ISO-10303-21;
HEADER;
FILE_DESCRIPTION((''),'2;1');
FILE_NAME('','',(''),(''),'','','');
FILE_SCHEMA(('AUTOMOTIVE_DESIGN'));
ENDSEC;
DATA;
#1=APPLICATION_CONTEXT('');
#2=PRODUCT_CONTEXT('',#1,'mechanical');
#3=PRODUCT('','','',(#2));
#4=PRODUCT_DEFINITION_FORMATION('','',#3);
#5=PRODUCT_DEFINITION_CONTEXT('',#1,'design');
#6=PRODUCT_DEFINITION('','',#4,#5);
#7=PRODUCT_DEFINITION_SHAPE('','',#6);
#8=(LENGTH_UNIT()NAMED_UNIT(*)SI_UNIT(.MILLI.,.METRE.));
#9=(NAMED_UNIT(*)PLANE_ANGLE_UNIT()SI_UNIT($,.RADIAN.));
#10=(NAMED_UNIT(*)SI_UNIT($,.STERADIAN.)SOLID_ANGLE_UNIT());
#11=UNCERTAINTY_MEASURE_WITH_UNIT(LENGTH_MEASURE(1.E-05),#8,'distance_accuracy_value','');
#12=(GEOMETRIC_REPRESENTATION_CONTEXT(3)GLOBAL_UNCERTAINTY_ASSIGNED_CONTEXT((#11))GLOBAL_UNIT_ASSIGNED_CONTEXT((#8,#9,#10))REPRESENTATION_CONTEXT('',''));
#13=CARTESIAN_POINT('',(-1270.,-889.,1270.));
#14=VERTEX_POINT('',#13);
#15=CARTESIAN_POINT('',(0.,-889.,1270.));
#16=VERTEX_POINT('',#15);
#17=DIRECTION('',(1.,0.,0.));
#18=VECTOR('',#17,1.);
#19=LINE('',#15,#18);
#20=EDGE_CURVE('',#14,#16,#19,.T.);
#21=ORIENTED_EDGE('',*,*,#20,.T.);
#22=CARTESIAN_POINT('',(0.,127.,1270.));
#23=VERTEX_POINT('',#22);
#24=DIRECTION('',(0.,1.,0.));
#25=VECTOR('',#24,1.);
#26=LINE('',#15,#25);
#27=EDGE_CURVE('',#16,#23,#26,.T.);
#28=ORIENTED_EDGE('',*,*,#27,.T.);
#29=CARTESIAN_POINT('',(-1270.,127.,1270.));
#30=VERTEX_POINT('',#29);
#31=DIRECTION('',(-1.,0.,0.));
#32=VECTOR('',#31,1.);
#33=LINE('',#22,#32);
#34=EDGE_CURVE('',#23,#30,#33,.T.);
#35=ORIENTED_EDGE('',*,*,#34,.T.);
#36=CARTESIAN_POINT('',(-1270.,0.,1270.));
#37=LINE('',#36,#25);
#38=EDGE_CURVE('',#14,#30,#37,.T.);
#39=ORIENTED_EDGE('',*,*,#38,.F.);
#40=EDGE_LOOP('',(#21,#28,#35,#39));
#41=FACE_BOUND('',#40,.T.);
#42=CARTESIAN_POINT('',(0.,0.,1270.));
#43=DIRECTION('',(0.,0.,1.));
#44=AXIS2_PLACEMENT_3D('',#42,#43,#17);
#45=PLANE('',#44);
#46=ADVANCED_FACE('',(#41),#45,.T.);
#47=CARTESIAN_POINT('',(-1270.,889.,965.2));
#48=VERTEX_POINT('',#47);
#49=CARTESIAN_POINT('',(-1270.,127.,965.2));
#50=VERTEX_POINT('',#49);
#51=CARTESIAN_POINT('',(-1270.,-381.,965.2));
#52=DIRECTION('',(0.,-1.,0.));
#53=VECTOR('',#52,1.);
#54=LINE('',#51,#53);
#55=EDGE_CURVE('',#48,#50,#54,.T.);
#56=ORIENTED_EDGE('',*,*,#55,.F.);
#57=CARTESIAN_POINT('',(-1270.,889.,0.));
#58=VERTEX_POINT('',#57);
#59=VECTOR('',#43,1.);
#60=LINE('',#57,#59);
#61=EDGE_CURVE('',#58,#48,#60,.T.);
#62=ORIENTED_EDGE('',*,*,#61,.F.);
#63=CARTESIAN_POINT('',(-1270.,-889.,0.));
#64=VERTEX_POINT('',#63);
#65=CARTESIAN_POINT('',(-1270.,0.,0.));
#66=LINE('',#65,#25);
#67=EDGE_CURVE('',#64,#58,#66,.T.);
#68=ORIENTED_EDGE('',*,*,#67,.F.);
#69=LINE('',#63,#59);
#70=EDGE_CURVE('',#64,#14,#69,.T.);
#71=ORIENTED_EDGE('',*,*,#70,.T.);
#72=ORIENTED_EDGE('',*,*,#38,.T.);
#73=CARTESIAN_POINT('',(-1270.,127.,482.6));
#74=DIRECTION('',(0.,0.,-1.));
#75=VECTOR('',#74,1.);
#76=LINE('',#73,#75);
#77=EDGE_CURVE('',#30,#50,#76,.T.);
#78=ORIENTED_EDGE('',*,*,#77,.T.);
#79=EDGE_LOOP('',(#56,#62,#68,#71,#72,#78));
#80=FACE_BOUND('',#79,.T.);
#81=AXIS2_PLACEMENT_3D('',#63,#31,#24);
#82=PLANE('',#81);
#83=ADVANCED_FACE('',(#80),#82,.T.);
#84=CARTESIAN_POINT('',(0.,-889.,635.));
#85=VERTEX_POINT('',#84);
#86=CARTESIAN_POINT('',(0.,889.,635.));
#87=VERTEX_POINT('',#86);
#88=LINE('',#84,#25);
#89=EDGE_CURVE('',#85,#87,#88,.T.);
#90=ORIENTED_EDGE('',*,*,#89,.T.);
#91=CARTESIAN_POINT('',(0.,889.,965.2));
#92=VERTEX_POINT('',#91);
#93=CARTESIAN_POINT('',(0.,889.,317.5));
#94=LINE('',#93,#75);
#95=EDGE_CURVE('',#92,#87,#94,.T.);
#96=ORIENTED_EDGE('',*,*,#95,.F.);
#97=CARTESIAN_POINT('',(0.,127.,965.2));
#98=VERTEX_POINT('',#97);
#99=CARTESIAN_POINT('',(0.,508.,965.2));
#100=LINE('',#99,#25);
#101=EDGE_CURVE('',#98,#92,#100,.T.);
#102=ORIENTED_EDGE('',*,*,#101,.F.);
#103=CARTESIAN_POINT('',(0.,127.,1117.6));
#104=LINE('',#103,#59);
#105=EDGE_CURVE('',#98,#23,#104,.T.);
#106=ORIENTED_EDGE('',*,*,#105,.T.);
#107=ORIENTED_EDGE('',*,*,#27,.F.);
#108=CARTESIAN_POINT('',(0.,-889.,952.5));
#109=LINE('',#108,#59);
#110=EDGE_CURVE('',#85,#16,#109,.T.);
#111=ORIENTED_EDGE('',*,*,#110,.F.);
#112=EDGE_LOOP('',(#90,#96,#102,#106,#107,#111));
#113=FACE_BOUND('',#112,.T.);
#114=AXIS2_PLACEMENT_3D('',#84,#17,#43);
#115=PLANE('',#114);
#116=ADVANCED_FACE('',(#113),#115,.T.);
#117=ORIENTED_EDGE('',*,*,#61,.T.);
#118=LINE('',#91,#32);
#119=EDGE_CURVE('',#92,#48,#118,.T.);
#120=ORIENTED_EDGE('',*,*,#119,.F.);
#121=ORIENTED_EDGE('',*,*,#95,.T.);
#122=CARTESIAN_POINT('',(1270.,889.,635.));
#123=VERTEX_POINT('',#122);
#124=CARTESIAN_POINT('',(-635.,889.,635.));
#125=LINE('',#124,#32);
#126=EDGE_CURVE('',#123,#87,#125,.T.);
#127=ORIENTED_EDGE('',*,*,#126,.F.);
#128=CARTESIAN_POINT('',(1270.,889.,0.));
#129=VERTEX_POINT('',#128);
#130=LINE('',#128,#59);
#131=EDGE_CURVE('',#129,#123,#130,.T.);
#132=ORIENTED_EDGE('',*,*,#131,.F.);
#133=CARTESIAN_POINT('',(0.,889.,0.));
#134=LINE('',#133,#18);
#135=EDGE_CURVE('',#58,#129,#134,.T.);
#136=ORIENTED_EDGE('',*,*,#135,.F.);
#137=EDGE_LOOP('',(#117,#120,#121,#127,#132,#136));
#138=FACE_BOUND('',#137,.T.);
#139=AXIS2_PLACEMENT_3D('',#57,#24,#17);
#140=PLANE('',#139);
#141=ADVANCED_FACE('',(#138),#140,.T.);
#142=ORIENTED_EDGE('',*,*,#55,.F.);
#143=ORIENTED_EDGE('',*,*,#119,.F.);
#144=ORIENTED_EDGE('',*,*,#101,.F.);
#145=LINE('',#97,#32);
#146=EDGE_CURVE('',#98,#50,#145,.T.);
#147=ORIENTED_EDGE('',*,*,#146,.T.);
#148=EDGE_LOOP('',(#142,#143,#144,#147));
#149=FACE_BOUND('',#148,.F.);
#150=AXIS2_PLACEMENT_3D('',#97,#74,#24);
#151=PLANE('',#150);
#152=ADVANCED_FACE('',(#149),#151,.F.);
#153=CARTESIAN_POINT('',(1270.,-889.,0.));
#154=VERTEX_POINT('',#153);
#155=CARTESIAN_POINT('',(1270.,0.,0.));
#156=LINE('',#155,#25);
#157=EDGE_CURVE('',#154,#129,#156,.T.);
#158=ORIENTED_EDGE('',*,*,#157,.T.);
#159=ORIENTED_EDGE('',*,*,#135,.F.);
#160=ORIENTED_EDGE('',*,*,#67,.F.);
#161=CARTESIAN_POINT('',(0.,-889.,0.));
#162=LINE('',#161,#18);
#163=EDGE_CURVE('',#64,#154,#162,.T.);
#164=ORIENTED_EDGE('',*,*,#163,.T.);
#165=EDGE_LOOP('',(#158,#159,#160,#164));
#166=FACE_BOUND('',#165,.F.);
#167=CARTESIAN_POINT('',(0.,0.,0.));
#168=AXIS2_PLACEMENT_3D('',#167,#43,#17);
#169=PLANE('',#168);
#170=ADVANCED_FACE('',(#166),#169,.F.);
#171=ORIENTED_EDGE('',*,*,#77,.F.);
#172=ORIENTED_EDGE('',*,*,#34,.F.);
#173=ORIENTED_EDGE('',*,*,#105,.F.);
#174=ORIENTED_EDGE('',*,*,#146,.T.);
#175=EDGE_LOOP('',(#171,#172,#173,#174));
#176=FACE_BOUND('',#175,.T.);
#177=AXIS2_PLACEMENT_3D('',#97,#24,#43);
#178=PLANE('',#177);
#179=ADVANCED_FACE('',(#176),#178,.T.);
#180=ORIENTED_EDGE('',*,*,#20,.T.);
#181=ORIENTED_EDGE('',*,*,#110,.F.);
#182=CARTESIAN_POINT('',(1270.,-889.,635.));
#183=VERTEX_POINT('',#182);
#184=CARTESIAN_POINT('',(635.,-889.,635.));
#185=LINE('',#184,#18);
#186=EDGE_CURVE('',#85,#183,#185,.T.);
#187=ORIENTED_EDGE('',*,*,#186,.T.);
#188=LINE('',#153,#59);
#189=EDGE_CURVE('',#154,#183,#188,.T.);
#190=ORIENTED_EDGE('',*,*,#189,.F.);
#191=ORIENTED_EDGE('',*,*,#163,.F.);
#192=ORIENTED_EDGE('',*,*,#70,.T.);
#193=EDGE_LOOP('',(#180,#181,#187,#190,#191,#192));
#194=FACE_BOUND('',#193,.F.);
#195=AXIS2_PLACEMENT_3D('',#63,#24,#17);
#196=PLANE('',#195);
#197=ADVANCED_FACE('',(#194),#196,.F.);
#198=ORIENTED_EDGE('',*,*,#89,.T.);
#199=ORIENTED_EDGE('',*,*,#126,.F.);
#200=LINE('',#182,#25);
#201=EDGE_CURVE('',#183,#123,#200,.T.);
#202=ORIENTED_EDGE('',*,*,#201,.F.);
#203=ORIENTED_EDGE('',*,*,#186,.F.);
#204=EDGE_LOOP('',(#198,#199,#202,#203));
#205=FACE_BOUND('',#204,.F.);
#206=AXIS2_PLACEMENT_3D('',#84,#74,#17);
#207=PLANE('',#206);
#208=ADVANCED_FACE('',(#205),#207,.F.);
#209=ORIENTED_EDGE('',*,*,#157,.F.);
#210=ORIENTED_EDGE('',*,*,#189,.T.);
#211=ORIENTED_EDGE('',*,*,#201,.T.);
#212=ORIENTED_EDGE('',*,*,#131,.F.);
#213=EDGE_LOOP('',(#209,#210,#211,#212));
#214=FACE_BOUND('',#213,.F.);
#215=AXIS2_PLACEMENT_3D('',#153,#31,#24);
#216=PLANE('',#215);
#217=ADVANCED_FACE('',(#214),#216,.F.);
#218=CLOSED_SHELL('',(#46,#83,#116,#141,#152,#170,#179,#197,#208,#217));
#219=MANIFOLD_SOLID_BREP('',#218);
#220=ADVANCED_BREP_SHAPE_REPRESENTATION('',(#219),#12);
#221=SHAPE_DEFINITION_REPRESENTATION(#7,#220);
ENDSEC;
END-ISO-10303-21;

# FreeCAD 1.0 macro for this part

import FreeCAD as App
import Part
import Sketcher

V = App.Vector
Q = App.Units.Quantity

doc = App.newDocument("Part")
params = doc.addObject("Spreadsheet::Sheet", "Params")
for row, (alias, value) in enumerate([
    ("sketch1_width", "100 in"),
    ("sketch1_height", "70 in"),
    ("pad1_length", "50 in"),
    ("sketch2_width", "50 in"),
    ("sketch2_height", "25 in"),
    ("pocket1_length", "154.9 in"),
    ("sketch3_width", "30 in"),
    ("sketch3_height", "12 in"),
    ("pocket2_length", "63.4 in"),
], start=1):
    params.set(f"A{row}", alias)
    params.set(f"B{row}", "=" + value)
    params.setAlias(f"B{row}", alias)

body = doc.addObject("PartDesign::Body", "Body")

# Sketch on XY plane
sketch1 = body.newObject("Sketcher::SketchObject", "Sketch")
sketch1.AttachmentSupport = (doc.getObject("XY_Plane"), [""])
sketch1.MapMode = "FlatFace"
sketch1.addGeometry([
    Part.LineSegment(V(-1270, 889, 0), V(-1270, -889, 0)),
    Part.LineSegment(V(-1270, -889, 0), V(1270, -889, 0)),
    Part.LineSegment(V(1270, -889, 0), V(1270, 889, 0)),
    Part.LineSegment(V(1270, 889, 0), V(-1270, 889, 0)),
], False)
sketch1.addConstraint([
    Sketcher.Constraint("Coincident", 0, 2, 1, 1),
    Sketcher.Constraint("Coincident", 1, 2, 2, 1),
    Sketcher.Constraint("Coincident", 2, 2, 3, 1),
    Sketcher.Constraint("Coincident", 3, 2, 0, 1),
    Sketcher.Constraint("Vertical", 0),
    Sketcher.Constraint("Horizontal", 1),
    Sketcher.Constraint("Vertical", 2),
    Sketcher.Constraint("Horizontal", 3),
    Sketcher.Constraint("Symmetric", 0, 2, 2, 2, -1, 1),
    Sketcher.Constraint("DistanceX", 1, 1, 1, 2, Q("100 in")),
    Sketcher.Constraint("DistanceY", 0, 2, 0, 1, Q("70 in")),
])
sketch1.setExpression("Constraints[9]", "Params.sketch1_width")
sketch1.setExpression("Constraints[10]", "Params.sketch1_height")
pad1 = body.newObject("PartDesign::Pad", "Pad")
pad1.Profile = sketch1
pad1.setExpression("Length", "Params.pad1_length")

# Sketch on XZ plane
sketch2 = body.newObject("Sketcher::SketchObject", "Sketch001")
sketch2.AttachmentSupport = (doc.getObject("XZ_Plane"), [""])
sketch2.MapMode = "FlatFace"
sketch2.AttachmentOffset = App.Placement(V(0, 0, 35 * 25.4), App.Rotation())
sketch2.addGeometry([
    Part.LineSegment(V(0, 1270, 0), V(0, 635, 0)),
    Part.LineSegment(V(0, 635, 0), V(1270, 635, 0)),
    Part.LineSegment(V(1270, 635, 0), V(1270, 1270, 0)),
    Part.LineSegment(V(1270, 1270, 0), V(0, 1270, 0)),
], False)
sketch2.addConstraint([
    Sketcher.Constraint("Coincident", 0, 2, 1, 1),
    Sketcher.Constraint("Coincident", 1, 2, 2, 1),
    Sketcher.Constraint("Coincident", 2, 2, 3, 1),
    Sketcher.Constraint("Coincident", 3, 2, 0, 1),
    Sketcher.Constraint("Vertical", 0),
    Sketcher.Constraint("Horizontal", 1),
    Sketcher.Constraint("Vertical", 2),
    Sketcher.Constraint("Horizontal", 3),
    Sketcher.Constraint("PointOnObject", 0, 2, -2),
    Sketcher.Constraint("DistanceX", 1, 1, 1, 2, Q("50 in")),
    Sketcher.Constraint("DistanceY", 0, 2, 0, 1, Q("25 in")),
    Sketcher.Constraint("DistanceY", -1, 1, 0, 2, Q("25 in")),
])
sketch2.setExpression("Constraints[9]", "Params.sketch2_width")
sketch2.setExpression("Constraints[10]", "Params.sketch2_height")
pocket1 = body.newObject("PartDesign::Pocket", "Pocket")
pocket1.Profile = sketch2
pocket1.setExpression("Length", "Params.pocket1_length")

# Sketch on YZ plane
sketch3 = body.newObject("Sketcher::SketchObject", "Sketch002")
sketch3.AttachmentSupport = (doc.getObject("YZ_Plane"), [""])
sketch3.MapMode = "FlatFace"
sketch3.addGeometry([
    Part.LineSegment(V(127, 1270, 0), V(127, 965.2, 0)),
    Part.LineSegment(V(127, 965.2, 0), V(889, 965.2, 0)),
    Part.LineSegment(V(889, 965.2, 0), V(889, 1270, 0)),
    Part.LineSegment(V(889, 1270, 0), V(127, 1270, 0)),
], False)
sketch3.addConstraint([
    Sketcher.Constraint("Coincident", 0, 2, 1, 1),
    Sketcher.Constraint("Coincident", 1, 2, 2, 1),
    Sketcher.Constraint("Coincident", 2, 2, 3, 1),
    Sketcher.Constraint("Coincident", 3, 2, 0, 1),
    Sketcher.Constraint("Vertical", 0),
    Sketcher.Constraint("Horizontal", 1),
    Sketcher.Constraint("Vertical", 2),
    Sketcher.Constraint("Horizontal", 3),
    Sketcher.Constraint("DistanceX", 1, 1, 1, 2, Q("30 in")),
    Sketcher.Constraint("DistanceY", 0, 2, 0, 1, Q("12 in")),
    Sketcher.Constraint("DistanceX", -1, 1, 0, 2, Q("5 in")),
    Sketcher.Constraint("DistanceY", -1, 1, 0, 2, Q("38 in")),
])
sketch3.setExpression("Constraints[8]", "Params.sketch3_width")
sketch3.setExpression("Constraints[9]", "Params.sketch3_height")
pocket2 = body.newObject("PartDesign::Pocket", "Pocket001")
pocket2.Profile = sketch3
pocket2.setExpression("Length", "Params.pocket2_length")

doc.recompute()
